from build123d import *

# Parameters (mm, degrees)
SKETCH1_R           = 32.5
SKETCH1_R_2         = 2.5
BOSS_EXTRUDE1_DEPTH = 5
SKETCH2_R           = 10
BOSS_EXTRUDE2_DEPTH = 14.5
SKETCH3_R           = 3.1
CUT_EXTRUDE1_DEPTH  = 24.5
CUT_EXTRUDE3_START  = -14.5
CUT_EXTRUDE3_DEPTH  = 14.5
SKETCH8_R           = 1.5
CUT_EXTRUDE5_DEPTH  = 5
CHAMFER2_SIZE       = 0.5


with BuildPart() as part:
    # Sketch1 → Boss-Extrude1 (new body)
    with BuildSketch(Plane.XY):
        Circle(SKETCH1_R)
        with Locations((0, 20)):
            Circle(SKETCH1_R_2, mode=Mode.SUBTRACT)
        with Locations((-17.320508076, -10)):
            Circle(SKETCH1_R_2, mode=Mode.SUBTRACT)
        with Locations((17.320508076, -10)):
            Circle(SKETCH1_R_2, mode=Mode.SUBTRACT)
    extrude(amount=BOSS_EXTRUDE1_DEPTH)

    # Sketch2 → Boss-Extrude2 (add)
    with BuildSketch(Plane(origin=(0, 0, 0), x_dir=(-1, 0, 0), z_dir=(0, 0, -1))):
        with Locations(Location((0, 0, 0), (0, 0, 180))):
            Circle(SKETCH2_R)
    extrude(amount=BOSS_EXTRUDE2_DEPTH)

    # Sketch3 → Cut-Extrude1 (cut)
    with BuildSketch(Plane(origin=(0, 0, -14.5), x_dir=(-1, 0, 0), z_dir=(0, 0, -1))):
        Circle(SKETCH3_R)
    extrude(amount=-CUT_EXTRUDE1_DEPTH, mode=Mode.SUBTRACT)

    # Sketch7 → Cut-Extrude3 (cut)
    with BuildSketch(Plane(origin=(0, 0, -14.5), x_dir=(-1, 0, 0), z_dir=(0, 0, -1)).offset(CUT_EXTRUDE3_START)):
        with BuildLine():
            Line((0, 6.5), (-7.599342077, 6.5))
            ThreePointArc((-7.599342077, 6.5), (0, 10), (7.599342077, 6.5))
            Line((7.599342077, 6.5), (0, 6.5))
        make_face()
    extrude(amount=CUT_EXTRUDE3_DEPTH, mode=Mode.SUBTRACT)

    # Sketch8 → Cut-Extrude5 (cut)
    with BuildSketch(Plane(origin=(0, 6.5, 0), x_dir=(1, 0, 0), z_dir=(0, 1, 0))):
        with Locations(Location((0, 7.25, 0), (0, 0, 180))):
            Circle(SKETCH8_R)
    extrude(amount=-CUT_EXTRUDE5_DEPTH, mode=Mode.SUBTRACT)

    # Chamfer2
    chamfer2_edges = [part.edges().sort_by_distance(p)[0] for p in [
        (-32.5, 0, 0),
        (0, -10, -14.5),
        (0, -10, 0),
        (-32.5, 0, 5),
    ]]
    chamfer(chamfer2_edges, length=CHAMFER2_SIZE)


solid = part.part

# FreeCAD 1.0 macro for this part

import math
import FreeCAD as App
import Part
import Sketcher
from FreeCAD import Vector
Q = App.Units.Quantity


def edges_at(feature, points):
    """Names of the edges that pass closest to the given points."""
    edges = feature.Shape.Edges
    near = lambda p: min(range(len(edges)), key=lambda i: edges[i].distToShape(Part.Vertex(*p))[0])
    return sorted({f"Edge{near(p) + 1}" for p in points})

doc = App.newDocument("Part")
body = doc.addObject("PartDesign::Body", "Body")

# Sketch on XY plane
sketch1 = doc.addObject("Sketcher::SketchObject", "Sketch")
body.addObject(sketch1)
sketch1.AttachmentSupport = (doc.XY_Plane, [""])
sketch1.MapMode = "FlatFace"
sketch1.addGeometry([
    Part.Circle(Vector(0, 0, 0), Vector(0, 0, 1), 32.5),
    Part.Circle(Vector(-17.3, -10, 0), Vector(0, 0, 1), 2.5),
    Part.Circle(Vector(17.3, -10, 0), Vector(0, 0, 1), 2.5),
    Part.Circle(Vector(0, 20, 0), Vector(0, 0, 1), 2.5),
], False)
sketch1.addConstraint([
    Sketcher.Constraint("Coincident", 0, 3, -1, 1),
    Sketcher.Constraint("Equal", 1, 2),
    Sketcher.Constraint("Equal", 2, 3),
    Sketcher.Constraint("Symmetric", 1, 3, 2, 3, -2),
    Sketcher.Constraint("PointOnObject", 3, 3, -2),
    Sketcher.Constraint("Diameter", 0, Q("65 mm")),
    Sketcher.Constraint("Diameter", 1, Q("5 mm")),
    Sketcher.Constraint("DistanceY", 1, 3, -1, 1, Q("10 mm")),
    Sketcher.Constraint("DistanceY", -1, 1, 3, 3, Q("20 mm")),
    Sketcher.Constraint("DistanceX", 1, 3, -1, 1, Q("17.320508 mm")),
])
pad1 = doc.addObject("PartDesign::Pad", "Pad")
body.addObject(pad1)
pad1.Profile = sketch1
pad1.Length = 5

# Sketch on XY plane
sketch2 = doc.addObject("Sketcher::SketchObject", "Sketch001")
body.addObject(sketch2)
sketch2.AttachmentSupport = (doc.XY_Plane, [""])
sketch2.MapMode = "FlatFace"
sketch2.addGeometry(Part.Circle(Vector(0, 0, 0), Vector(0, 0, 1), 10), False)
sketch2.addConstraint([
    Sketcher.Constraint("Coincident", 0, 3, -1, 1),
    Sketcher.Constraint("Diameter", 0, Q("20 mm")),
])
pad2 = doc.addObject("PartDesign::Pad", "Pad001")
body.addObject(pad2)
pad2.Profile = sketch2
pad2.Length = 14.5
pad2.Reversed = True

# Sketch on XY plane
sketch3 = doc.addObject("Sketcher::SketchObject", "Sketch002")
body.addObject(sketch3)
sketch3.AttachmentSupport = (doc.XY_Plane, [""])
sketch3.MapMode = "FlatFace"
sketch3.AttachmentOffset = App.Placement(Vector(0, 0, -14.5), App.Rotation())
sketch3.addGeometry(Part.Circle(Vector(0, 0, 0), Vector(0, 0, 1), 3.1), False)
sketch3.addConstraint([
    Sketcher.Constraint("Coincident", 0, 3, -1, 1),
    Sketcher.Constraint("Diameter", 0, Q("6.2 mm")),
])
pocket1 = doc.addObject("PartDesign::Pocket", "Pocket")
body.addObject(pocket1)
pocket1.Profile = sketch3
pocket1.Length = 24.5
pocket1.Reversed = True

# Sketch on XY plane
sketch4 = doc.addObject("Sketcher::SketchObject", "Sketch003")
body.addObject(sketch4)
sketch4.AttachmentSupport = (doc.XY_Plane, [""])
sketch4.MapMode = "FlatFace"
sketch4.addGeometry([
    Part.ArcOfCircle(Part.Circle(Vector(0, 0, 0), Vector(0, 0, 1), 10), math.radians(41), math.radians(139)),
    Part.LineSegment(Vector(8, 6, 0), Vector(-8, 6, 0)),
], False)
sketch4.addConstraint([
    Sketcher.Constraint("Coincident", 0, 1, 1, 1),
    Sketcher.Constraint("Coincident", 1, 2, 0, 2),
    Sketcher.Constraint("Horizontal", 1),
    Sketcher.Constraint("Coincident", 0, 3, -1, 1),
    Sketcher.Constraint("Radius", 0, Q("10 mm")),
    Sketcher.Constraint("DistanceY", -1, 1, 0, 1, Q("6.5 mm")),
])
pocket2 = doc.addObject("PartDesign::Pocket", "Pocket001")
body.addObject(pocket2)
pocket2.Profile = sketch4
pocket2.Length = 14.5

# Sketch on XZ plane
sketch5 = doc.addObject("Sketcher::SketchObject", "Sketch004")
body.addObject(sketch5)
sketch5.AttachmentSupport = (doc.XZ_Plane, [""])
sketch5.MapMode = "FlatFace"
sketch5.AttachmentOffset = App.Placement(Vector(0, 0, -6.5), App.Rotation())
sketch5.addGeometry(Part.Circle(Vector(0, -7.2, 0), Vector(0, 0, 1), 1.5), False)
sketch5.addConstraint([
    Sketcher.Constraint("PointOnObject", 0, 3, -2),
    Sketcher.Constraint("Diameter", 0, Q("3 mm")),
    Sketcher.Constraint("DistanceY", 0, 3, -1, 1, Q("7.25 mm")),
])
pocket3 = doc.addObject("PartDesign::Pocket", "Pocket002")
body.addObject(pocket3)
pocket3.Profile = sketch5
pocket3.Length = 5
pocket3.Reversed = True
doc.recompute()

chamfer = doc.addObject("PartDesign::Chamfer", "Chamfer")
body.addObject(chamfer)
chamfer.Base = (pocket3, edges_at(pocket3, [
    (-32.5, 0, 0),
    (0, -10, -14.5),
    (0, -10, 0),
    (-32.5, 0, 5),
]))
chamfer.Size = 0.5

doc.recompute()
